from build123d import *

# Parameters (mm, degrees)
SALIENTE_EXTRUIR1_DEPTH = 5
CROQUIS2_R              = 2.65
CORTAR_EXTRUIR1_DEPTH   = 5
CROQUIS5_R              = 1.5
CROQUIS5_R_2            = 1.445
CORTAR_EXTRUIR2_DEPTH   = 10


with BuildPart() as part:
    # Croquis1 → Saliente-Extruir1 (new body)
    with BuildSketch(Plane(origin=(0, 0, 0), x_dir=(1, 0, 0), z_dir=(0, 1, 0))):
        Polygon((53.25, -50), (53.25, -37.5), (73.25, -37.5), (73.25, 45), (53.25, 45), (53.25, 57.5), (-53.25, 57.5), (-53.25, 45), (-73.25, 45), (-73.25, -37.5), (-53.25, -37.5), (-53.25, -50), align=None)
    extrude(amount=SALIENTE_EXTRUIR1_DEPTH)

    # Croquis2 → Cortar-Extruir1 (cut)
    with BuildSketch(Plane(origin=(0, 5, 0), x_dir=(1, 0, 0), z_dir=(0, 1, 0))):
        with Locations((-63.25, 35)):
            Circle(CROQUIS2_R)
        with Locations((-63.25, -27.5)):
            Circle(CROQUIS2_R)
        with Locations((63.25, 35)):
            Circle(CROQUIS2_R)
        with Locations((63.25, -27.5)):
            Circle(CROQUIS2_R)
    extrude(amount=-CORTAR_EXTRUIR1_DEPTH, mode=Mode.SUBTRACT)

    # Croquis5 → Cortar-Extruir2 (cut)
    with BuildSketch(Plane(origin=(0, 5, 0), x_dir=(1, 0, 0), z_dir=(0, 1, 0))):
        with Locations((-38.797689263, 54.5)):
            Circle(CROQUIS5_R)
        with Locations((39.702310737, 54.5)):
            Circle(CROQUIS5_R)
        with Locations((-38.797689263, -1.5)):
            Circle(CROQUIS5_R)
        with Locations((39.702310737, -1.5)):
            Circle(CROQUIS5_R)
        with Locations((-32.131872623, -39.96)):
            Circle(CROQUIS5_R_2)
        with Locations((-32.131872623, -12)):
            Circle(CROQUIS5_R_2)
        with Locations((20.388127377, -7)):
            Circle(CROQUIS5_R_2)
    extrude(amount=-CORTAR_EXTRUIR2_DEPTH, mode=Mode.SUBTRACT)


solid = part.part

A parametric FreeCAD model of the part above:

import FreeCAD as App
import Part
import Sketcher
from FreeCAD import Vector
Q = App.Units.Quantity

doc = App.newDocument("Part")
body = doc.addObject("PartDesign::Body", "Body")

# Sketch on XZ plane
sketch1 = body.newObject("Sketcher::SketchObject", "Sketch")
sketch1.AttachmentSupport = (doc.getObject("XZ_Plane"), [""])
sketch1.MapMode = "FlatFace"
sketch1.addGeometry([
    Part.LineSegment(Vector(53, 50, 0), Vector(53, 38, 0)),  # 0
    Part.LineSegment(Vector(53, 38, 0), Vector(73, 38, 0)),  # 1
    Part.LineSegment(Vector(73, 38, 0), Vector(73, -45, 0)),  # 2
    Part.LineSegment(Vector(73, -45, 0), Vector(53, -45, 0)),  # 3
    Part.LineSegment(Vector(53, -45, 0), Vector(53, -58, 0)),  # 4
    Part.LineSegment(Vector(53, -58, 0), Vector(-53, -58, 0)),  # 5
    Part.LineSegment(Vector(-53, -58, 0), Vector(-53, -45, 0)),  # 6
    Part.LineSegment(Vector(-53, -45, 0), Vector(-73, -45, 0)),  # 7
    Part.LineSegment(Vector(-73, -45, 0), Vector(-73, 38, 0)),  # 8
    Part.LineSegment(Vector(-73, 38, 0), Vector(-53, 38, 0)),  # 9
    Part.LineSegment(Vector(-53, 38, 0), Vector(-53, 50, 0)),  # 10
    Part.LineSegment(Vector(-53, 50, 0), Vector(53, 50, 0)),  # 11
], False)
sketch1.addConstraint([
    Sketcher.Constraint("Coincident", 0, 2, 1, 1),
    Sketcher.Constraint("Coincident", 1, 2, 2, 1),
    Sketcher.Constraint("Coincident", 2, 2, 3, 1),
    Sketcher.Constraint("Coincident", 3, 2, 4, 1),
    Sketcher.Constraint("Coincident", 4, 2, 5, 1),
    Sketcher.Constraint("Coincident", 5, 2, 6, 1),
    Sketcher.Constraint("Coincident", 6, 2, 7, 1),
    Sketcher.Constraint("Coincident", 7, 2, 8, 1),
    Sketcher.Constraint("Coincident", 8, 2, 9, 1),
    Sketcher.Constraint("Coincident", 9, 2, 10, 1),
    Sketcher.Constraint("Coincident", 10, 2, 11, 1),
    Sketcher.Constraint("Coincident", 11, 2, 0, 1),
    Sketcher.Constraint("Vertical", 0),
    Sketcher.Constraint("Horizontal", 1),
    Sketcher.Constraint("Vertical", 2),
    Sketcher.Constraint("Horizontal", 3),
    Sketcher.Constraint("Vertical", 4),
    Sketcher.Constraint("Horizontal", 5),
    Sketcher.Constraint("Vertical", 6),
    Sketcher.Constraint("Horizontal", 7),
    Sketcher.Constraint("Vertical", 8),
    Sketcher.Constraint("Horizontal", 9),
    Sketcher.Constraint("Vertical", 10),
    Sketcher.Constraint("Horizontal", 11),
    Sketcher.Constraint("Symmetric", 3, 2, 6, 2, -2),
    Sketcher.Constraint("Symmetric", 1, 2, 8, 2, -2),
    Sketcher.Constraint("Vertical", 0, 2, 3, 2),
    Sketcher.Constraint("Vertical", 6, 2, 9, 2),
    Sketcher.Constraint("Equal", 0, 4),
    Sketcher.Constraint("DistanceX", 1, 1, 1, 2, Q("20 mm")),
    Sketcher.Constraint("DistanceX", 5, 2, 5, 1, Q("106.5 mm")),
    Sketcher.Constraint("DistanceY", 0, 2, 0, 1, Q("12.5 mm")),
    Sketcher.Constraint("DistanceY", 2, 2, 2, 1, Q("82.5 mm")),
    Sketcher.Constraint("DistanceY", 2, 2, -1, 1, Q("45 mm")),
])
pad1 = body.newObject("PartDesign::Pad", "Pad")
pad1.Profile = sketch1
pad1.Length = 5
pad1.Reversed = True

# Sketch on XZ plane
sketch2 = body.newObject("Sketcher::SketchObject", "Sketch001")
sketch2.AttachmentSupport = (doc.getObject("XZ_Plane"), [""])
sketch2.MapMode = "FlatFace"
sketch2.AttachmentOffset = App.Placement(Vector(0, 0, -5), App.Rotation())
sketch2.addGeometry([
    Part.Circle(Vector(-63.2, -35, 0), Vector(0, 0, 1), 2.6),
    Part.Circle(Vector(-63.2, 27.5, 0), Vector(0, 0, 1), 2.6),
    Part.Circle(Vector(63.2, -35, 0), Vector(0, 0, 1), 2.6),
    Part.Circle(Vector(63.2, 27.5, 0), Vector(0, 0, 1), 2.6),
], False)
sketch2.addConstraint([
    Sketcher.Constraint("Equal", 0, 1),
    Sketcher.Constraint("Equal", 1, 2),
    Sketcher.Constraint("Equal", 2, 3),
    Sketcher.Constraint("Symmetric", 0, 3, 2, 3, -2),
    Sketcher.Constraint("Symmetric", 1, 3, 3, 3, -2),
    Sketcher.Constraint("Vertical", 0, 3, 1, 3),
    Sketcher.Constraint("Diameter", 0, Q("5.3 mm")),
    Sketcher.Constraint("DistanceY", 0, 3, -1, 1, Q("35 mm")),
    Sketcher.Constraint("DistanceY", -1, 1, 1, 3, Q("27.5 mm")),
    Sketcher.Constraint("DistanceX", 0, 3, 2, 3, Q("126.5 mm")),
])
pocket1 = body.newObject("PartDesign::Pocket", "Pocket")
pocket1.Profile = sketch2
pocket1.Length = 5
pocket1.Reversed = True

# Sketch on XZ plane
sketch3 = body.newObject("Sketcher::SketchObject", "Sketch002")
sketch3.AttachmentSupport = (doc.getObject("XZ_Plane"), [""])
sketch3.MapMode = "FlatFace"
sketch3.AttachmentOffset = App.Placement(Vector(0, 0, -5), App.Rotation())
sketch3.addGeometry([
    Part.Circle(Vector(-38.8, -54.5, 0), Vector(0, 0, 1), 1.5),  # 0
    Part.Circle(Vector(39.7, -54.5, 0), Vector(0, 0, 1), 1.5),  # 1
    Part.Circle(Vector(-38.8, 1.5, 0), Vector(0, 0, 1), 1.5),  # 2
    Part.Circle(Vector(39.7, 1.5, 0), Vector(0, 0, 1), 1.5),  # 3
    Part.Circle(Vector(-32.1, 40, 0), Vector(0, 0, 1), 1.4),  # 4
    Part.Circle(Vector(-32.1, 12, 0), Vector(0, 0, 1), 1.4),  # 5
    Part.Circle(Vector(20.4, 7, 0), Vector(0, 0, 1), 1.4),  # 6
], False)
sketch3.addConstraint([
    Sketcher.Constraint("Equal", 0, 1),
    Sketcher.Constraint("Equal", 1, 2),
    Sketcher.Constraint("Equal", 2, 3),
    Sketcher.Constraint("Equal", 4, 5),
    Sketcher.Constraint("Equal", 5, 6),
    Sketcher.Constraint("Horizontal", 0, 3, 1, 3),
    Sketcher.Constraint("Horizontal", 2, 3, 3, 3),
    Sketcher.Constraint("Vertical", 0, 3, 2, 3),
    Sketcher.Constraint("Vertical", 1, 3, 3, 3),
    Sketcher.Constraint("Vertical", 4, 3, 5, 3),
    Sketcher.Constraint("Diameter", 0, Q("3 mm")),
    Sketcher.Constraint("Diameter", 4, Q("2.89 mm")),
    Sketcher.Constraint("DistanceY", -1, 1, 5, 3, Q("12 mm")),
    Sketcher.Constraint("DistanceY", -1, 1, 6, 3, Q("7 mm")),
    Sketcher.Constraint("DistanceY", 0, 3, 2, 3, Q("56 mm")),
    Sketcher.Constraint("DistanceY", 0, 3, -1, 1, Q("54.5 mm")),
    Sketcher.Constraint("DistanceX", 0, 3, 1, 3, Q("78.5 mm")),
    Sketcher.Constraint("DistanceY", -1, 1, 4, 3, Q("39.96 mm")),
    Sketcher.Constraint("DistanceX", 5, 3, 6, 3, Q("52.52 mm")),
    Sketcher.Constraint("DistanceX", 0, 3, -1, 1, Q("38.797689 mm")),
    Sketcher.Constraint("DistanceX", 4, 3, -1, 1, Q("32.131873 mm")),
])
pocket2 = body.newObject("PartDesign::Pocket", "Pocket001")
pocket2.Profile = sketch3
pocket2.Length = 10
pocket2.Reversed = True

doc.recompute()
